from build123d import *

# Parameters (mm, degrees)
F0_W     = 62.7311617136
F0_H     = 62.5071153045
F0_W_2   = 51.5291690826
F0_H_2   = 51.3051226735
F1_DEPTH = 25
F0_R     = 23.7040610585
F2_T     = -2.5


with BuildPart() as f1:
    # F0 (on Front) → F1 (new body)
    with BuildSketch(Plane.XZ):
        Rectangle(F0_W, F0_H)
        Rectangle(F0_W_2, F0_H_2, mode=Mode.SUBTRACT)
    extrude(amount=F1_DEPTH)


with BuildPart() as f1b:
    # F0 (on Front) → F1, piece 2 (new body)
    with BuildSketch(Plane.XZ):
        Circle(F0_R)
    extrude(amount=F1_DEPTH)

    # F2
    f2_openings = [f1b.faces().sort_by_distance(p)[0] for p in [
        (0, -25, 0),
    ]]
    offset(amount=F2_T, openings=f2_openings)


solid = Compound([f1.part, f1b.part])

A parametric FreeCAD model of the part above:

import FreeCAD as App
import Part
import Sketcher
from FreeCAD import Vector
Q = App.Units.Quantity


def faces_at(feature, points):
    """Names of the faces that lie closest to the given points."""
    faces = feature.Shape.Faces
    near = lambda p: min(range(len(faces)), key=lambda i: faces[i].distToShape(Part.Vertex(*p))[0])
    return sorted({f"Face{near(p) + 1}" for p in points})

doc = App.newDocument("Part")
body = doc.addObject("PartDesign::Body", "Body")

sketch1 = body.newObject("Sketcher::SketchObject", "Sketch")
sketch1.AttachmentSupport = (doc.getObject("XZ_Plane"), [""])
sketch1.MapMode = "FlatFace"
sketch1.addGeometry(Part.LineSegment(Vector(-31, 31, 0), Vector(-31, -31, 0)), False)
sketch1.addGeometry(Part.LineSegment(Vector(-31, -31, 0), Vector(31, -31, 0)), False)
sketch1.addGeometry(Part.LineSegment(Vector(31, -31, 0), Vector(31, 31, 0)), False)
sketch1.addGeometry(Part.LineSegment(Vector(31, 31, 0), Vector(-31, 31, 0)), False)
sketch1.addGeometry(Part.LineSegment(Vector(26, -26, 0), Vector(-26, -26, 0)), False)
sketch1.addGeometry(Part.LineSegment(Vector(-26, -26, 0), Vector(-26, 26, 0)), False)
sketch1.addGeometry(Part.LineSegment(Vector(-26, 26, 0), Vector(26, 26, 0)), False)
sketch1.addGeometry(Part.LineSegment(Vector(26, 26, 0), Vector(26, -26, 0)), False)
sketch1.addConstraint(Sketcher.Constraint("Coincident", 0, 2, 1, 1))
sketch1.addConstraint(Sketcher.Constraint("Coincident", 1, 2, 2, 1))
sketch1.addConstraint(Sketcher.Constraint("Coincident", 2, 2, 3, 1))
sketch1.addConstraint(Sketcher.Constraint("Coincident", 3, 2, 0, 1))
sketch1.addConstraint(Sketcher.Constraint("Coincident", 4, 2, 5, 1))
sketch1.addConstraint(Sketcher.Constraint("Coincident", 5, 2, 6, 1))
sketch1.addConstraint(Sketcher.Constraint("Coincident", 6, 2, 7, 1))
sketch1.addConstraint(Sketcher.Constraint("Coincident", 7, 2, 4, 1))
sketch1.addConstraint(Sketcher.Constraint("Vertical", 0))
sketch1.addConstraint(Sketcher.Constraint("Horizontal", 1))
sketch1.addConstraint(Sketcher.Constraint("Vertical", 2))
sketch1.addConstraint(Sketcher.Constraint("Horizontal", 3))
sketch1.addConstraint(Sketcher.Constraint("Horizontal", 4))
sketch1.addConstraint(Sketcher.Constraint("Vertical", 5))
sketch1.addConstraint(Sketcher.Constraint("Horizontal", 6))
sketch1.addConstraint(Sketcher.Constraint("Vertical", 7))
sketch1.addConstraint(Sketcher.Constraint("Symmetric", 0, 2, 2, 2, -1, 1))
sketch1.addConstraint(Sketcher.Constraint("Symmetric", 4, 2, 6, 2, -1, 1))
sketch1.addConstraint(Sketcher.Constraint("DistanceX", 1, 1, 1, 2, Q("62.731162 mm")))
sketch1.addConstraint(Sketcher.Constraint("DistanceX", 4, 2, 4, 1, Q("51.529169 mm")))
sketch1.addConstraint(Sketcher.Constraint("DistanceY", 0, 2, 0, 1, Q("62.507115 mm")))
sketch1.addConstraint(Sketcher.Constraint("DistanceY", 5, 1, 5, 2, Q("51.305123 mm")))
pad1 = body.newObject("PartDesign::Pad", "Pad")
pad1.Profile = sketch1
pad1.Length = 25
body2 = doc.addObject("PartDesign::Body", "Body001")

sketch2 = body2.newObject("Sketcher::SketchObject", "Sketch001")
sketch2.AttachmentSupport = (doc.getObject("XZ_Plane001"), [""])
sketch2.MapMode = "FlatFace"
sketch2.addGeometry(Part.Circle(Vector(0, 0, 0), Vector(0, 0, 1), 24), False)
sketch2.addConstraint(Sketcher.Constraint("Coincident", 0, 3, -1, 1))
sketch2.addConstraint(Sketcher.Constraint("Diameter", 0, Q("47.408122 mm")))
pad2 = body2.newObject("PartDesign::Pad", "Pad001")
pad2.Profile = sketch2
pad2.Length = 25
doc.recompute()

thickness = body2.newObject("PartDesign::Thickness", "Thickness")
thickness.Base = (pad2, faces_at(pad2, [(0, -25, 0)]))
thickness.Value = 2.5
thickness.Reversed = True
thickness.Join = "Arc"

doc.recompute()
